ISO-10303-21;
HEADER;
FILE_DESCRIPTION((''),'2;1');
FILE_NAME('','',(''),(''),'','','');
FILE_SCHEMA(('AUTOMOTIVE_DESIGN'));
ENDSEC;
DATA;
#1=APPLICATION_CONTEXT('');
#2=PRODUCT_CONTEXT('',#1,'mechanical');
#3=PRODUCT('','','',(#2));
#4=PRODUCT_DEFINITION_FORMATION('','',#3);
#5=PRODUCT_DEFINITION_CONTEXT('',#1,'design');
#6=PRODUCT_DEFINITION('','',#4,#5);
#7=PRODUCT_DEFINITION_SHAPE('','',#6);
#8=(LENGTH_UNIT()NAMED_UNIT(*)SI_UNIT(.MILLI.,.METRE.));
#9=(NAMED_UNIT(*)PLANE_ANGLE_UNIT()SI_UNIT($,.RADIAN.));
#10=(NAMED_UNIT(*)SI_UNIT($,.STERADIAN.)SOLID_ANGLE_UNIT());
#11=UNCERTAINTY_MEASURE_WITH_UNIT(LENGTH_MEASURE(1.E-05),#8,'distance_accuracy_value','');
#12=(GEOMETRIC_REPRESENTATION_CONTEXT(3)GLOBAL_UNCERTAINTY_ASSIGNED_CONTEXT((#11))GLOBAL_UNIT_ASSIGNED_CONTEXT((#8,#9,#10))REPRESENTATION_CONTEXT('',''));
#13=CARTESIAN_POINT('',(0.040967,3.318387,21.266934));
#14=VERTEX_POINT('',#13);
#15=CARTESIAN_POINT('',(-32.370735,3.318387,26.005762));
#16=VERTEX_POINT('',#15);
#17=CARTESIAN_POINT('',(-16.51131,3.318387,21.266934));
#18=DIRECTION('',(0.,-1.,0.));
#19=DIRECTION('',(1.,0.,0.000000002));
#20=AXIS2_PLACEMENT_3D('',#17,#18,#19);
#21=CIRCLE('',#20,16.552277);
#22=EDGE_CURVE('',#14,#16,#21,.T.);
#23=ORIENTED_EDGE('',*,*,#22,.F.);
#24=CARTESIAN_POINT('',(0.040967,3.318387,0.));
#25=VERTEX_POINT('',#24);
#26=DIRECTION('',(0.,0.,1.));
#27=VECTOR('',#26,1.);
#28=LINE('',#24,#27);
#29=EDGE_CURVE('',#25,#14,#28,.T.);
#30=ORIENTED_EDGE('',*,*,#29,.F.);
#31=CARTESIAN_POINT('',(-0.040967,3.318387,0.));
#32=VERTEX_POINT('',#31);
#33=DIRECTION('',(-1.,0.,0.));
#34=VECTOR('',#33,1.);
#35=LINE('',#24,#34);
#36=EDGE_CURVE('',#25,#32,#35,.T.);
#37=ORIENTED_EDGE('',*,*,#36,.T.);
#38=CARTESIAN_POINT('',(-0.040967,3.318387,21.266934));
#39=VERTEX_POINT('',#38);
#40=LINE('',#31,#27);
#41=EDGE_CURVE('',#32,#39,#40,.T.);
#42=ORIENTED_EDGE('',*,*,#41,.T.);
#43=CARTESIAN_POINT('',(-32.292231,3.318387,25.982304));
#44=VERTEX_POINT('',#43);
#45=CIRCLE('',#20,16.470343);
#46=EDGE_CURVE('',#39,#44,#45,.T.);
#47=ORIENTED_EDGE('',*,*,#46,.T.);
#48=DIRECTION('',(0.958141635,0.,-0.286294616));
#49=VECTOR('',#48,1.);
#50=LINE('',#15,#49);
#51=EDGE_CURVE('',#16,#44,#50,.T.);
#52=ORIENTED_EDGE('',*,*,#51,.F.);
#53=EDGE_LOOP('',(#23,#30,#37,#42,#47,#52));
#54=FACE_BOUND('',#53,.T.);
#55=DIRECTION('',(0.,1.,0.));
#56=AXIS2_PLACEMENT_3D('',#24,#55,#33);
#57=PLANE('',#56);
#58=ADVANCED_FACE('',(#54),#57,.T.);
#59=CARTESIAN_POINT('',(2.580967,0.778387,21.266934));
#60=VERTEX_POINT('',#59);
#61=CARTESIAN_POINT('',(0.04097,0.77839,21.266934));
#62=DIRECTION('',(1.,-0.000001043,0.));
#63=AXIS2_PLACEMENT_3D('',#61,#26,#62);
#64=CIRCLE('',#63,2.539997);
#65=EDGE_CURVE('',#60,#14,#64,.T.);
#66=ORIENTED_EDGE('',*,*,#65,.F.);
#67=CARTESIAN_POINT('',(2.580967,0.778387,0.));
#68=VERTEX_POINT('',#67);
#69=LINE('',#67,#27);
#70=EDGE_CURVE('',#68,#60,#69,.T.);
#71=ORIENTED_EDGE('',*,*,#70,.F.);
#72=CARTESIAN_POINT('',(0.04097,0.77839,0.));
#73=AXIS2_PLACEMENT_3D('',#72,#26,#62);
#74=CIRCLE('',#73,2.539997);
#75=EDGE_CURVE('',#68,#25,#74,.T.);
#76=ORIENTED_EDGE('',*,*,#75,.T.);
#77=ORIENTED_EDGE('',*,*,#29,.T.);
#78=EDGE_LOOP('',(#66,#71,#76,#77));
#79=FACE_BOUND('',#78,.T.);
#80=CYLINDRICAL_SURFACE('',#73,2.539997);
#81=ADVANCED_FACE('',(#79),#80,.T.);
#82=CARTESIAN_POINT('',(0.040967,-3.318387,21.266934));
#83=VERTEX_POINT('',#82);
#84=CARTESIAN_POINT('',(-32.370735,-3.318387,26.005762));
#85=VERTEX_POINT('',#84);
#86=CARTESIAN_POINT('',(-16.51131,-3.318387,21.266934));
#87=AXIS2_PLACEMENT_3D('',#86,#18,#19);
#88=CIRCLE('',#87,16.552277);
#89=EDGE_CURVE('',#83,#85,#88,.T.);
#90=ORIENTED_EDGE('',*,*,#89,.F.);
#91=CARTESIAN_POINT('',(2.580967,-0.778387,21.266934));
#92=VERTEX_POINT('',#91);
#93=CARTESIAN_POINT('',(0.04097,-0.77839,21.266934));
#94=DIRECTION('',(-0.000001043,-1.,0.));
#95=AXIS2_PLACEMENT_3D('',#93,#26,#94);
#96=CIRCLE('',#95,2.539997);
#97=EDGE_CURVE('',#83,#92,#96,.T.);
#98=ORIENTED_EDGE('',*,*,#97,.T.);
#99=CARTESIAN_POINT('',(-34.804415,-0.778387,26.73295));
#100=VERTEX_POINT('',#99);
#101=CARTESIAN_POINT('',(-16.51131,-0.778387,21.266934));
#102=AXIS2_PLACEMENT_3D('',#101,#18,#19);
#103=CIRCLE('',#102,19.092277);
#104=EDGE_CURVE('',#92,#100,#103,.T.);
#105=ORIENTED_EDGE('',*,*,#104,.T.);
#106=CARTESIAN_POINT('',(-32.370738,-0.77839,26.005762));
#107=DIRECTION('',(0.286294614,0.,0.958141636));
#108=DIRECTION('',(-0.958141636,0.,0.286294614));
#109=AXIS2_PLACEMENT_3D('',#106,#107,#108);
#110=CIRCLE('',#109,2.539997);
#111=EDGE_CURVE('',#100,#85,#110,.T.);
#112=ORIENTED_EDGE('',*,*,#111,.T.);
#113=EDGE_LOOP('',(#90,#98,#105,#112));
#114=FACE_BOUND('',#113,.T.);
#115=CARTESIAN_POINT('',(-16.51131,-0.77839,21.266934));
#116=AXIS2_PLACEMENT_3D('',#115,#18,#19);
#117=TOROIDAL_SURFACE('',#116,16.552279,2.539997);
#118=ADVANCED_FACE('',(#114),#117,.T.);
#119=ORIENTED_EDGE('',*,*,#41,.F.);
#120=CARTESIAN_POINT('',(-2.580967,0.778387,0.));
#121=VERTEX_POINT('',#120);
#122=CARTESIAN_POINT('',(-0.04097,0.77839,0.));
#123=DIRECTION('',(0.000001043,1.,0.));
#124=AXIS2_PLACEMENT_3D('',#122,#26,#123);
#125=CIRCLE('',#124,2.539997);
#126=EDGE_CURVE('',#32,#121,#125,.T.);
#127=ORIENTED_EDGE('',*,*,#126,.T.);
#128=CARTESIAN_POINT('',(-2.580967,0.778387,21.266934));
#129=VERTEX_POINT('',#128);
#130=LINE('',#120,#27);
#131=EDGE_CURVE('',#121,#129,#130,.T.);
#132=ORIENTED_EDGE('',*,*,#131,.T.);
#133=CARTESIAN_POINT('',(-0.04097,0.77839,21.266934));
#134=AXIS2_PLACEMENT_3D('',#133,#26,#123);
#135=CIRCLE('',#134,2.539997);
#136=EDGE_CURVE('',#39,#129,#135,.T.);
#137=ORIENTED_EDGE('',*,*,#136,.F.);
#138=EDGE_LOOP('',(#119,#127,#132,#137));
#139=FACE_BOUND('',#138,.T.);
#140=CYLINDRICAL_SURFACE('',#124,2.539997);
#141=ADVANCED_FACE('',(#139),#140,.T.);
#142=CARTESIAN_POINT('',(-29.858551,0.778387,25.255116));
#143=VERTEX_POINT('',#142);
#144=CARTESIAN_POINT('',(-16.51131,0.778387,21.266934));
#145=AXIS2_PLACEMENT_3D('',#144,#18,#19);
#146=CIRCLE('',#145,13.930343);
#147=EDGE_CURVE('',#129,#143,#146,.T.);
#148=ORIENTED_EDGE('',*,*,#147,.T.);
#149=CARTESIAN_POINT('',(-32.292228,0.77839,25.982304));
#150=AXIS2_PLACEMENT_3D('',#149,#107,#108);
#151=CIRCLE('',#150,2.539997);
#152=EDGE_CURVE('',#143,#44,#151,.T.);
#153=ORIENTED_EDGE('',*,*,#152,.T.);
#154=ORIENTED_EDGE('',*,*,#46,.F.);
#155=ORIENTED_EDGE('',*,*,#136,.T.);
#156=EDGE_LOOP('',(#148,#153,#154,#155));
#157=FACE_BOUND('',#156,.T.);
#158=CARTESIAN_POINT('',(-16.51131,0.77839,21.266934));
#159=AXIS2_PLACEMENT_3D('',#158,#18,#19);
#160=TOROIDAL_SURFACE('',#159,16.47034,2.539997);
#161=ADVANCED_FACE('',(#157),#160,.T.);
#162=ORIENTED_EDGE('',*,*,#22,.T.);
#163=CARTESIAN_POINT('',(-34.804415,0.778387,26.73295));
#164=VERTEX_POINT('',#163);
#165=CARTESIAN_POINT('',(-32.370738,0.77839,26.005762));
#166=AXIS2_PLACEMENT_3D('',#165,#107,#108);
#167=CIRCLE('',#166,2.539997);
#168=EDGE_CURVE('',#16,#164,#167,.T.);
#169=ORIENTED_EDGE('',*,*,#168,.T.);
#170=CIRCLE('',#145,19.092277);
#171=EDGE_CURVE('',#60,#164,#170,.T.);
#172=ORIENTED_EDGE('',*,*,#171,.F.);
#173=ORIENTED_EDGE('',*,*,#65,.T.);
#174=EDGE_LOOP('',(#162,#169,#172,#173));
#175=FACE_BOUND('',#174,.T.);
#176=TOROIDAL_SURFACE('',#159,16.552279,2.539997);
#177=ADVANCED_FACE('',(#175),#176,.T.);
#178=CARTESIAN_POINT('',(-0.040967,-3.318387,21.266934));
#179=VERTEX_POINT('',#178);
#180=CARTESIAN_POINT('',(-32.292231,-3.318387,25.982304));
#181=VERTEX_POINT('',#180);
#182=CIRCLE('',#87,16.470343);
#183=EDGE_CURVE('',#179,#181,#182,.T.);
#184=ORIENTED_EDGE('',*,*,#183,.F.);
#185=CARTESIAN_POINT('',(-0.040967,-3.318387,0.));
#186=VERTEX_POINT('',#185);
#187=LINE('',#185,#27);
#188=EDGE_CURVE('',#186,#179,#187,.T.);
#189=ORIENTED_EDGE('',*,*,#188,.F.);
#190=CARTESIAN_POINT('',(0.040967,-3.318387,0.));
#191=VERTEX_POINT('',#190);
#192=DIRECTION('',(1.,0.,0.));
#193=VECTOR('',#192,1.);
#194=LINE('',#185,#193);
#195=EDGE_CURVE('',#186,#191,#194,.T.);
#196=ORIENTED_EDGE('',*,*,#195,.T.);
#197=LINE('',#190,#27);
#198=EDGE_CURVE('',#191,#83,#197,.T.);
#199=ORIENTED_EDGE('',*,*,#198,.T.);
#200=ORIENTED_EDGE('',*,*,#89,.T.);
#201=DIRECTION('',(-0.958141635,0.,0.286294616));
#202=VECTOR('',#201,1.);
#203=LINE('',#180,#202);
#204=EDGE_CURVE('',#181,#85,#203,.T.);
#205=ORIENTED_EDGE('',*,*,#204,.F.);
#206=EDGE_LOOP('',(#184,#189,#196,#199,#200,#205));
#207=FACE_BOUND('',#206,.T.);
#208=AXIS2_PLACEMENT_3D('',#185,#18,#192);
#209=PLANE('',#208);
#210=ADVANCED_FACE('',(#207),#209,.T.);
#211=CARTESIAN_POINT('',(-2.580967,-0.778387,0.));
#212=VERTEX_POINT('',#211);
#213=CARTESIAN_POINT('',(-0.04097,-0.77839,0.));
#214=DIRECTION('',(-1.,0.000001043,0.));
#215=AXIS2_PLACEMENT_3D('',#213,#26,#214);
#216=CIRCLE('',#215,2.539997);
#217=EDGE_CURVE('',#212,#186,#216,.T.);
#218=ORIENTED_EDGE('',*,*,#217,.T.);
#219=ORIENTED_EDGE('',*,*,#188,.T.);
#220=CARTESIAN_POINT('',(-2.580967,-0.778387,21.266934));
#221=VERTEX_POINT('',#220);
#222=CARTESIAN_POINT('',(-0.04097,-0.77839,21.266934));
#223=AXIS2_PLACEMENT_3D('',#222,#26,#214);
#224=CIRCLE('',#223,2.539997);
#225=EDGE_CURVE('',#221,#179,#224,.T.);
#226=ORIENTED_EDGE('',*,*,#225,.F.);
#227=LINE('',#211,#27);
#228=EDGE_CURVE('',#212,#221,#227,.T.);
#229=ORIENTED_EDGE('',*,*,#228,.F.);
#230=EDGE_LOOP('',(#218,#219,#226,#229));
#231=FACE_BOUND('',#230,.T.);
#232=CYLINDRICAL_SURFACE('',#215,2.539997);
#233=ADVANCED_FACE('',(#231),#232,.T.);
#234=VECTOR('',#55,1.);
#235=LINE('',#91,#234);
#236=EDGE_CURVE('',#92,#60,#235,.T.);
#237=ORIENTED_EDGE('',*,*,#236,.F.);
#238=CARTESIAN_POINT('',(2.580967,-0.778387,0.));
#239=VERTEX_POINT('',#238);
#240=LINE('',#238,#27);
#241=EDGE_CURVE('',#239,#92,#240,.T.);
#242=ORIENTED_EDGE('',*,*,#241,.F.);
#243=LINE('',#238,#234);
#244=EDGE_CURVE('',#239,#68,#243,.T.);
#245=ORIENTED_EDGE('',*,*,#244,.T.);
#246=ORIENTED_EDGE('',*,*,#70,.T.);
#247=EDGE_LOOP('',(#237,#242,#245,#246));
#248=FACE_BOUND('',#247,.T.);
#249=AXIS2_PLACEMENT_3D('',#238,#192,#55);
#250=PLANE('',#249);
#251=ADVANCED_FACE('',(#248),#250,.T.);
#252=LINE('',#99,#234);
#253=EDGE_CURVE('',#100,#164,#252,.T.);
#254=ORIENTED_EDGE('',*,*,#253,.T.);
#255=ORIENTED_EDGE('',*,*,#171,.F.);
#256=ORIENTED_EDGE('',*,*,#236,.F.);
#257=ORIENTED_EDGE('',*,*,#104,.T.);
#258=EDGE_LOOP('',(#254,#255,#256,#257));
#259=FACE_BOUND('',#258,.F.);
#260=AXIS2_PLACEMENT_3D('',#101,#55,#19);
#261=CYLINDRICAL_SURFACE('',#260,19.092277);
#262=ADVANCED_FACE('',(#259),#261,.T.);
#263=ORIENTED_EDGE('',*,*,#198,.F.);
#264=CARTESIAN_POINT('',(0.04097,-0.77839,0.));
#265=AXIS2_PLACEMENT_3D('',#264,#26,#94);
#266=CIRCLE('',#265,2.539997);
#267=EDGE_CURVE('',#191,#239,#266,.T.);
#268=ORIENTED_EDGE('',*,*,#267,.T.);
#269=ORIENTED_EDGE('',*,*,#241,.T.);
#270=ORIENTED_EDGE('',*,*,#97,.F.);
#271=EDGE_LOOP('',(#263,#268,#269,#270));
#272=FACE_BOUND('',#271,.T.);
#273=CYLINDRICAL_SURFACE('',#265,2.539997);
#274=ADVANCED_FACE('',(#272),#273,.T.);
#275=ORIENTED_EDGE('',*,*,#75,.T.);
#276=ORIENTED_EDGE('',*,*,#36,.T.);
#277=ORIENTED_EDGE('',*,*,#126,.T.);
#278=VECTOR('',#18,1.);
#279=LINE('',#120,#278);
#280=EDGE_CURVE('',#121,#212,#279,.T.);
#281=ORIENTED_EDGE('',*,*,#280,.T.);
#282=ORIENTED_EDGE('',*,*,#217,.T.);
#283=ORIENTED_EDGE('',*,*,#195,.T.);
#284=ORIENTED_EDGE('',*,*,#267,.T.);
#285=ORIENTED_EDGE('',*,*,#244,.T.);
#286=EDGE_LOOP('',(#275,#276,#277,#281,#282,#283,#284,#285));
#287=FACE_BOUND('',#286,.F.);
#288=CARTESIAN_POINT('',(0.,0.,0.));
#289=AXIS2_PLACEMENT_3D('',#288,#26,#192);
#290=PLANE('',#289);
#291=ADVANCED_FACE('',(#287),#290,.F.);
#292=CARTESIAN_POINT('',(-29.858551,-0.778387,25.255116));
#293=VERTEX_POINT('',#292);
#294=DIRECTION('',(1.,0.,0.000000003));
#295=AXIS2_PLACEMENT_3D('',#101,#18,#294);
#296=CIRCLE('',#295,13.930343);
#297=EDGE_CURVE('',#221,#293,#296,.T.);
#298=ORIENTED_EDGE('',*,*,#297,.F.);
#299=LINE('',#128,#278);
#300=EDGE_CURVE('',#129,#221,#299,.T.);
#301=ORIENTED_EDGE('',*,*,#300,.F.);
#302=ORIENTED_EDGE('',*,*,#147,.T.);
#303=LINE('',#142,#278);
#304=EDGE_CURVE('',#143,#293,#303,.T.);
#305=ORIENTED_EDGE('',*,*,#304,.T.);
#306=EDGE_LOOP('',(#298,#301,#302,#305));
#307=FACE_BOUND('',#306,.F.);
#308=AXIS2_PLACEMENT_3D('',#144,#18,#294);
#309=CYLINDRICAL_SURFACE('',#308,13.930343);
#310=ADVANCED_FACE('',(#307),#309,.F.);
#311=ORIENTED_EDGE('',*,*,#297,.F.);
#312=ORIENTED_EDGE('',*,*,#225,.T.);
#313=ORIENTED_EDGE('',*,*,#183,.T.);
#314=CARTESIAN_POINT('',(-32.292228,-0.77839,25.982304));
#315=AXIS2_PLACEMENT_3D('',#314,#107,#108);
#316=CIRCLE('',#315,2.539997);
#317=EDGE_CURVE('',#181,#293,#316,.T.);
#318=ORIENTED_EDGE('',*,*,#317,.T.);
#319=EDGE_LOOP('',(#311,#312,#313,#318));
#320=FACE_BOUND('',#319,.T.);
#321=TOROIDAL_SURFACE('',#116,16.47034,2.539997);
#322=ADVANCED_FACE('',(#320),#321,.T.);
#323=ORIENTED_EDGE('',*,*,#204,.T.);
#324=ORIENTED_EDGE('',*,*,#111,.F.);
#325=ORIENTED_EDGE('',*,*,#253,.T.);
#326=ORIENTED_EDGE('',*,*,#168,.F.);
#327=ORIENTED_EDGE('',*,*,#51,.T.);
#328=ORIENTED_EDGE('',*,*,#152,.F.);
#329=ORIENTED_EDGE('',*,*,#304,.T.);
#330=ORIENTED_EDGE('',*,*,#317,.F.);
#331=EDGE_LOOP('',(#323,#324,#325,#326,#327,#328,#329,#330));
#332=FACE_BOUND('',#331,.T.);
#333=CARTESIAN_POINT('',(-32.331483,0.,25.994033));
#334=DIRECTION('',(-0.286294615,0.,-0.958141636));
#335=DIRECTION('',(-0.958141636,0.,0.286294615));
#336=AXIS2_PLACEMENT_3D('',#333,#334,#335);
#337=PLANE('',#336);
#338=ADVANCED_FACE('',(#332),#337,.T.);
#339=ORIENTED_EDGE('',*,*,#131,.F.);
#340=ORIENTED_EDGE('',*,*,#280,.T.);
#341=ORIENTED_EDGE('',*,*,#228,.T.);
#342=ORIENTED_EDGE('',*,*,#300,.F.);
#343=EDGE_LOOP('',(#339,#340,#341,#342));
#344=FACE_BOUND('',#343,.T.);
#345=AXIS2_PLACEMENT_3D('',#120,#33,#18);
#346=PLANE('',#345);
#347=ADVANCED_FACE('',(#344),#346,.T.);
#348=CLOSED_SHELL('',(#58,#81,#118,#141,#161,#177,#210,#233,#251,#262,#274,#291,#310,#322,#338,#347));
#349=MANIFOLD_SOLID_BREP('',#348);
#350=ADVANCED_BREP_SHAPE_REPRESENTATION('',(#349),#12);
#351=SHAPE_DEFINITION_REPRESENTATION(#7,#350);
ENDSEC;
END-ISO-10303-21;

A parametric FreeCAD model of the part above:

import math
import FreeCAD as App
import Part
import Sketcher

V = App.Vector
Q = App.Units.Quantity

doc = App.newDocument("Part")
body = doc.addObject("PartDesign::Body", "Body")

# Sketch on XY plane
sketch1 = doc.addObject("Sketcher::SketchObject", "Sketch")
body.addObject(sketch1)
sketch1.AttachmentSupport = (doc.XY_Plane, [""])
sketch1.MapMode = "FlatFace"
sketch1.addGeometry(Part.LineSegment(V(-0.04, -3.32, 0), V(0.04, -3.32, 0)), False)
sketch1.addGeometry(Part.ArcOfCircle(Part.Circle(V(0.04, -0.78, 0), V(0, 0, 1), 2.54), math.radians(-90), math.radians(0)), False)
sketch1.addGeometry(Part.LineSegment(V(2.58, -0.78, 0), V(2.58, 0.78, 0)), False)
sketch1.addGeometry(Part.ArcOfCircle(Part.Circle(V(0.04, 0.78, 0), V(0, 0, 1), 2.54), math.radians(0), math.radians(90)), False)
sketch1.addGeometry(Part.LineSegment(V(0.04, 3.32, 0), V(-0.04, 3.32, 0)), False)
sketch1.addGeometry(Part.ArcOfCircle(Part.Circle(V(-0.04, 0.78, 0), V(0, 0, 1), 2.54), math.radians(90), math.radians(180)), False)
sketch1.addGeometry(Part.LineSegment(V(-2.58, 0.78, 0), V(-2.58, -0.78, 0)), False)
sketch1.addGeometry(Part.ArcOfCircle(Part.Circle(V(-0.04, -0.78, 0), V(0, 0, 1), 2.54), math.radians(180), math.radians(270)), False)
sketch1.addConstraint(Sketcher.Constraint("Tangent", 0, 2, 1, 1))
sketch1.addConstraint(Sketcher.Constraint("Tangent", 1, 2, 2, 1))
sketch1.addConstraint(Sketcher.Constraint("Tangent", 2, 2, 3, 1))
sketch1.addConstraint(Sketcher.Constraint("Tangent", 3, 2, 4, 1))
sketch1.addConstraint(Sketcher.Constraint("Tangent", 4, 2, 5, 1))
sketch1.addConstraint(Sketcher.Constraint("Tangent", 5, 2, 6, 1))
sketch1.addConstraint(Sketcher.Constraint("Tangent", 6, 2, 7, 1))
sketch1.addConstraint(Sketcher.Constraint("Tangent", 7, 2, 0, 1))
sketch1.addConstraint(Sketcher.Constraint("Horizontal", 0))
sketch1.addConstraint(Sketcher.Constraint("Vertical", 2))
sketch1.addConstraint(Sketcher.Constraint("Horizontal", 4))
sketch1.addConstraint(Sketcher.Constraint("Vertical", 6))
sketch1.addConstraint(Sketcher.Constraint("Equal", 1, 3))
sketch1.addConstraint(Sketcher.Constraint("Equal", 3, 5))
sketch1.addConstraint(Sketcher.Constraint("Equal", 5, 7))
sketch1.addConstraint(Sketcher.Constraint("Symmetric", 1, 3, 5, 3, -1, 1))
sketch1.addConstraint(Sketcher.Constraint("Radius", 1, Q("0.0999999 in")))
sketch1.addConstraint(Sketcher.Constraint("DistanceX", 0, 1, 0, 2, Q("0.081934 mm")))
sketch1.addConstraint(Sketcher.Constraint("DistanceY", 2, 1, 2, 2, Q("1.556774 mm")))

# Sketch on XZ plane
sketch2 = doc.addObject("Sketcher::SketchObject", "Sketch001")
body.addObject(sketch2)
sketch2.AttachmentSupport = (doc.XZ_Plane, [""])
sketch2.MapMode = "FlatFace"
sketch2.addGeometry(Part.LineSegment(V(0, 0, 0), V(0, 21, 0)), False)
sketch2.addGeometry(Part.ArcOfCircle(Part.Circle(V(-17, 21, 0), V(0, 0, 1), 17), math.radians(0), math.radians(163)), False)
sketch2.addConstraint(Sketcher.Constraint("Tangent", 0, 2, 1, 1))
sketch2.addConstraint(Sketcher.Constraint("Vertical", 0))
sketch2.addConstraint(Sketcher.Constraint("Coincident", 0, 1, -1, 1))
sketch2.addConstraint(Sketcher.Constraint("Radius", 1, Q("16.51131 mm")))
sketch2.addConstraint(Sketcher.Constraint("DistanceY", 1, 3, 1, 2, Q("4.727099 mm")))
sketch2.addConstraint(Sketcher.Constraint("DistanceY", 0, 1, 0, 2, Q("21.266934 mm")))
doc.recompute()

additivepipe = doc.addObject("PartDesign::AdditivePipe", "AdditivePipe")
body.addObject(additivepipe)
additivepipe.Profile = sketch1
additivepipe.Spine = (sketch2, ["Edge1", "Edge2"])

doc.recompute()
